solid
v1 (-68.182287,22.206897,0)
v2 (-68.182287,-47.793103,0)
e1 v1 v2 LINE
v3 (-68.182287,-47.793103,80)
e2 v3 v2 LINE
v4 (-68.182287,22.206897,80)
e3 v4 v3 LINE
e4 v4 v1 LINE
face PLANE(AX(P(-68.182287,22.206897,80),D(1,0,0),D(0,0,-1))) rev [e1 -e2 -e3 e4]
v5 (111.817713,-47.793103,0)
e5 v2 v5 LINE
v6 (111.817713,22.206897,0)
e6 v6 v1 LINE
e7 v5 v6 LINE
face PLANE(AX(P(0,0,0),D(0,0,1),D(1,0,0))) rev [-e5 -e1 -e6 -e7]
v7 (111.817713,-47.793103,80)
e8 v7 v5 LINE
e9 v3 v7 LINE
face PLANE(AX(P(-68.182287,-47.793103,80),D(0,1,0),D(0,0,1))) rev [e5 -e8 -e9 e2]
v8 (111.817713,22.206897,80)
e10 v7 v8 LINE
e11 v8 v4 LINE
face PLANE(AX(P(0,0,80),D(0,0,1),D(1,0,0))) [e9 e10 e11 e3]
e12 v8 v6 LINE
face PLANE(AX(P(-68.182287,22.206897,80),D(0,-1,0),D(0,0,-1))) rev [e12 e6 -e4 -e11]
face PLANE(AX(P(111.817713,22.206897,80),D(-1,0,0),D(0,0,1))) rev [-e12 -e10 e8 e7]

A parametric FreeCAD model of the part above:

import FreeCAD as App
import Part
import Sketcher
from FreeCAD import Vector

doc = App.newDocument("Part")
body = doc.addObject("PartDesign::Body", "Body")

# Sketch on XY plane
sketch1 = doc.addObject("Sketcher::SketchObject", "Sketch")
body.addObject(sketch1)
sketch1.AttachmentSupport = (doc.XY_Plane, [""])
sketch1.MapMode = "FlatFace"
sketch1.addGeometry(Part.LineSegment(Vector(-68.182287, 22.206897, 0), Vector(-68.182287, -47.793103, 0)), False)
sketch1.addGeometry(Part.LineSegment(Vector(-68.182287, -47.793103, 0), Vector(111.817713, -47.793103, 0)), False)
sketch1.addGeometry(Part.LineSegment(Vector(111.817713, -47.793103, 0), Vector(111.817713, 22.206897, 0)), False)
sketch1.addGeometry(Part.LineSegment(Vector(111.817713, 22.206897, 0), Vector(-68.182287, 22.206897, 0)), False)
sketch1.addConstraint(Sketcher.Constraint("Coincident", 0, 2, 1, 1))
sketch1.addConstraint(Sketcher.Constraint("Coincident", 1, 2, 2, 1))
sketch1.addConstraint(Sketcher.Constraint("Coincident", 2, 2, 3, 1))
sketch1.addConstraint(Sketcher.Constraint("Coincident", 3, 2, 0, 1))
sketch1.addConstraint(Sketcher.Constraint("Vertical", 0))
sketch1.addConstraint(Sketcher.Constraint("Horizontal", 1))
sketch1.addConstraint(Sketcher.Constraint("Vertical", 2))
sketch1.addConstraint(Sketcher.Constraint("Horizontal", 3))
sketch1.addConstraint(Sketcher.Constraint("DistanceX", 1, 1, 1, 2, 180.0))
sketch1.addConstraint(Sketcher.Constraint("DistanceY", 0, 2, 0, 1, 70.0))
sketch1.addConstraint(Sketcher.Constraint("DistanceX", 0, 2, -1, 1, 68.182287))
sketch1.addConstraint(Sketcher.Constraint("DistanceY", 0, 2, -1, 1, 47.793103))
pad1 = doc.addObject("PartDesign::Pad", "Pad")
body.addObject(pad1)
pad1.Profile = sketch1
pad1.Length = 80

doc.recompute()
